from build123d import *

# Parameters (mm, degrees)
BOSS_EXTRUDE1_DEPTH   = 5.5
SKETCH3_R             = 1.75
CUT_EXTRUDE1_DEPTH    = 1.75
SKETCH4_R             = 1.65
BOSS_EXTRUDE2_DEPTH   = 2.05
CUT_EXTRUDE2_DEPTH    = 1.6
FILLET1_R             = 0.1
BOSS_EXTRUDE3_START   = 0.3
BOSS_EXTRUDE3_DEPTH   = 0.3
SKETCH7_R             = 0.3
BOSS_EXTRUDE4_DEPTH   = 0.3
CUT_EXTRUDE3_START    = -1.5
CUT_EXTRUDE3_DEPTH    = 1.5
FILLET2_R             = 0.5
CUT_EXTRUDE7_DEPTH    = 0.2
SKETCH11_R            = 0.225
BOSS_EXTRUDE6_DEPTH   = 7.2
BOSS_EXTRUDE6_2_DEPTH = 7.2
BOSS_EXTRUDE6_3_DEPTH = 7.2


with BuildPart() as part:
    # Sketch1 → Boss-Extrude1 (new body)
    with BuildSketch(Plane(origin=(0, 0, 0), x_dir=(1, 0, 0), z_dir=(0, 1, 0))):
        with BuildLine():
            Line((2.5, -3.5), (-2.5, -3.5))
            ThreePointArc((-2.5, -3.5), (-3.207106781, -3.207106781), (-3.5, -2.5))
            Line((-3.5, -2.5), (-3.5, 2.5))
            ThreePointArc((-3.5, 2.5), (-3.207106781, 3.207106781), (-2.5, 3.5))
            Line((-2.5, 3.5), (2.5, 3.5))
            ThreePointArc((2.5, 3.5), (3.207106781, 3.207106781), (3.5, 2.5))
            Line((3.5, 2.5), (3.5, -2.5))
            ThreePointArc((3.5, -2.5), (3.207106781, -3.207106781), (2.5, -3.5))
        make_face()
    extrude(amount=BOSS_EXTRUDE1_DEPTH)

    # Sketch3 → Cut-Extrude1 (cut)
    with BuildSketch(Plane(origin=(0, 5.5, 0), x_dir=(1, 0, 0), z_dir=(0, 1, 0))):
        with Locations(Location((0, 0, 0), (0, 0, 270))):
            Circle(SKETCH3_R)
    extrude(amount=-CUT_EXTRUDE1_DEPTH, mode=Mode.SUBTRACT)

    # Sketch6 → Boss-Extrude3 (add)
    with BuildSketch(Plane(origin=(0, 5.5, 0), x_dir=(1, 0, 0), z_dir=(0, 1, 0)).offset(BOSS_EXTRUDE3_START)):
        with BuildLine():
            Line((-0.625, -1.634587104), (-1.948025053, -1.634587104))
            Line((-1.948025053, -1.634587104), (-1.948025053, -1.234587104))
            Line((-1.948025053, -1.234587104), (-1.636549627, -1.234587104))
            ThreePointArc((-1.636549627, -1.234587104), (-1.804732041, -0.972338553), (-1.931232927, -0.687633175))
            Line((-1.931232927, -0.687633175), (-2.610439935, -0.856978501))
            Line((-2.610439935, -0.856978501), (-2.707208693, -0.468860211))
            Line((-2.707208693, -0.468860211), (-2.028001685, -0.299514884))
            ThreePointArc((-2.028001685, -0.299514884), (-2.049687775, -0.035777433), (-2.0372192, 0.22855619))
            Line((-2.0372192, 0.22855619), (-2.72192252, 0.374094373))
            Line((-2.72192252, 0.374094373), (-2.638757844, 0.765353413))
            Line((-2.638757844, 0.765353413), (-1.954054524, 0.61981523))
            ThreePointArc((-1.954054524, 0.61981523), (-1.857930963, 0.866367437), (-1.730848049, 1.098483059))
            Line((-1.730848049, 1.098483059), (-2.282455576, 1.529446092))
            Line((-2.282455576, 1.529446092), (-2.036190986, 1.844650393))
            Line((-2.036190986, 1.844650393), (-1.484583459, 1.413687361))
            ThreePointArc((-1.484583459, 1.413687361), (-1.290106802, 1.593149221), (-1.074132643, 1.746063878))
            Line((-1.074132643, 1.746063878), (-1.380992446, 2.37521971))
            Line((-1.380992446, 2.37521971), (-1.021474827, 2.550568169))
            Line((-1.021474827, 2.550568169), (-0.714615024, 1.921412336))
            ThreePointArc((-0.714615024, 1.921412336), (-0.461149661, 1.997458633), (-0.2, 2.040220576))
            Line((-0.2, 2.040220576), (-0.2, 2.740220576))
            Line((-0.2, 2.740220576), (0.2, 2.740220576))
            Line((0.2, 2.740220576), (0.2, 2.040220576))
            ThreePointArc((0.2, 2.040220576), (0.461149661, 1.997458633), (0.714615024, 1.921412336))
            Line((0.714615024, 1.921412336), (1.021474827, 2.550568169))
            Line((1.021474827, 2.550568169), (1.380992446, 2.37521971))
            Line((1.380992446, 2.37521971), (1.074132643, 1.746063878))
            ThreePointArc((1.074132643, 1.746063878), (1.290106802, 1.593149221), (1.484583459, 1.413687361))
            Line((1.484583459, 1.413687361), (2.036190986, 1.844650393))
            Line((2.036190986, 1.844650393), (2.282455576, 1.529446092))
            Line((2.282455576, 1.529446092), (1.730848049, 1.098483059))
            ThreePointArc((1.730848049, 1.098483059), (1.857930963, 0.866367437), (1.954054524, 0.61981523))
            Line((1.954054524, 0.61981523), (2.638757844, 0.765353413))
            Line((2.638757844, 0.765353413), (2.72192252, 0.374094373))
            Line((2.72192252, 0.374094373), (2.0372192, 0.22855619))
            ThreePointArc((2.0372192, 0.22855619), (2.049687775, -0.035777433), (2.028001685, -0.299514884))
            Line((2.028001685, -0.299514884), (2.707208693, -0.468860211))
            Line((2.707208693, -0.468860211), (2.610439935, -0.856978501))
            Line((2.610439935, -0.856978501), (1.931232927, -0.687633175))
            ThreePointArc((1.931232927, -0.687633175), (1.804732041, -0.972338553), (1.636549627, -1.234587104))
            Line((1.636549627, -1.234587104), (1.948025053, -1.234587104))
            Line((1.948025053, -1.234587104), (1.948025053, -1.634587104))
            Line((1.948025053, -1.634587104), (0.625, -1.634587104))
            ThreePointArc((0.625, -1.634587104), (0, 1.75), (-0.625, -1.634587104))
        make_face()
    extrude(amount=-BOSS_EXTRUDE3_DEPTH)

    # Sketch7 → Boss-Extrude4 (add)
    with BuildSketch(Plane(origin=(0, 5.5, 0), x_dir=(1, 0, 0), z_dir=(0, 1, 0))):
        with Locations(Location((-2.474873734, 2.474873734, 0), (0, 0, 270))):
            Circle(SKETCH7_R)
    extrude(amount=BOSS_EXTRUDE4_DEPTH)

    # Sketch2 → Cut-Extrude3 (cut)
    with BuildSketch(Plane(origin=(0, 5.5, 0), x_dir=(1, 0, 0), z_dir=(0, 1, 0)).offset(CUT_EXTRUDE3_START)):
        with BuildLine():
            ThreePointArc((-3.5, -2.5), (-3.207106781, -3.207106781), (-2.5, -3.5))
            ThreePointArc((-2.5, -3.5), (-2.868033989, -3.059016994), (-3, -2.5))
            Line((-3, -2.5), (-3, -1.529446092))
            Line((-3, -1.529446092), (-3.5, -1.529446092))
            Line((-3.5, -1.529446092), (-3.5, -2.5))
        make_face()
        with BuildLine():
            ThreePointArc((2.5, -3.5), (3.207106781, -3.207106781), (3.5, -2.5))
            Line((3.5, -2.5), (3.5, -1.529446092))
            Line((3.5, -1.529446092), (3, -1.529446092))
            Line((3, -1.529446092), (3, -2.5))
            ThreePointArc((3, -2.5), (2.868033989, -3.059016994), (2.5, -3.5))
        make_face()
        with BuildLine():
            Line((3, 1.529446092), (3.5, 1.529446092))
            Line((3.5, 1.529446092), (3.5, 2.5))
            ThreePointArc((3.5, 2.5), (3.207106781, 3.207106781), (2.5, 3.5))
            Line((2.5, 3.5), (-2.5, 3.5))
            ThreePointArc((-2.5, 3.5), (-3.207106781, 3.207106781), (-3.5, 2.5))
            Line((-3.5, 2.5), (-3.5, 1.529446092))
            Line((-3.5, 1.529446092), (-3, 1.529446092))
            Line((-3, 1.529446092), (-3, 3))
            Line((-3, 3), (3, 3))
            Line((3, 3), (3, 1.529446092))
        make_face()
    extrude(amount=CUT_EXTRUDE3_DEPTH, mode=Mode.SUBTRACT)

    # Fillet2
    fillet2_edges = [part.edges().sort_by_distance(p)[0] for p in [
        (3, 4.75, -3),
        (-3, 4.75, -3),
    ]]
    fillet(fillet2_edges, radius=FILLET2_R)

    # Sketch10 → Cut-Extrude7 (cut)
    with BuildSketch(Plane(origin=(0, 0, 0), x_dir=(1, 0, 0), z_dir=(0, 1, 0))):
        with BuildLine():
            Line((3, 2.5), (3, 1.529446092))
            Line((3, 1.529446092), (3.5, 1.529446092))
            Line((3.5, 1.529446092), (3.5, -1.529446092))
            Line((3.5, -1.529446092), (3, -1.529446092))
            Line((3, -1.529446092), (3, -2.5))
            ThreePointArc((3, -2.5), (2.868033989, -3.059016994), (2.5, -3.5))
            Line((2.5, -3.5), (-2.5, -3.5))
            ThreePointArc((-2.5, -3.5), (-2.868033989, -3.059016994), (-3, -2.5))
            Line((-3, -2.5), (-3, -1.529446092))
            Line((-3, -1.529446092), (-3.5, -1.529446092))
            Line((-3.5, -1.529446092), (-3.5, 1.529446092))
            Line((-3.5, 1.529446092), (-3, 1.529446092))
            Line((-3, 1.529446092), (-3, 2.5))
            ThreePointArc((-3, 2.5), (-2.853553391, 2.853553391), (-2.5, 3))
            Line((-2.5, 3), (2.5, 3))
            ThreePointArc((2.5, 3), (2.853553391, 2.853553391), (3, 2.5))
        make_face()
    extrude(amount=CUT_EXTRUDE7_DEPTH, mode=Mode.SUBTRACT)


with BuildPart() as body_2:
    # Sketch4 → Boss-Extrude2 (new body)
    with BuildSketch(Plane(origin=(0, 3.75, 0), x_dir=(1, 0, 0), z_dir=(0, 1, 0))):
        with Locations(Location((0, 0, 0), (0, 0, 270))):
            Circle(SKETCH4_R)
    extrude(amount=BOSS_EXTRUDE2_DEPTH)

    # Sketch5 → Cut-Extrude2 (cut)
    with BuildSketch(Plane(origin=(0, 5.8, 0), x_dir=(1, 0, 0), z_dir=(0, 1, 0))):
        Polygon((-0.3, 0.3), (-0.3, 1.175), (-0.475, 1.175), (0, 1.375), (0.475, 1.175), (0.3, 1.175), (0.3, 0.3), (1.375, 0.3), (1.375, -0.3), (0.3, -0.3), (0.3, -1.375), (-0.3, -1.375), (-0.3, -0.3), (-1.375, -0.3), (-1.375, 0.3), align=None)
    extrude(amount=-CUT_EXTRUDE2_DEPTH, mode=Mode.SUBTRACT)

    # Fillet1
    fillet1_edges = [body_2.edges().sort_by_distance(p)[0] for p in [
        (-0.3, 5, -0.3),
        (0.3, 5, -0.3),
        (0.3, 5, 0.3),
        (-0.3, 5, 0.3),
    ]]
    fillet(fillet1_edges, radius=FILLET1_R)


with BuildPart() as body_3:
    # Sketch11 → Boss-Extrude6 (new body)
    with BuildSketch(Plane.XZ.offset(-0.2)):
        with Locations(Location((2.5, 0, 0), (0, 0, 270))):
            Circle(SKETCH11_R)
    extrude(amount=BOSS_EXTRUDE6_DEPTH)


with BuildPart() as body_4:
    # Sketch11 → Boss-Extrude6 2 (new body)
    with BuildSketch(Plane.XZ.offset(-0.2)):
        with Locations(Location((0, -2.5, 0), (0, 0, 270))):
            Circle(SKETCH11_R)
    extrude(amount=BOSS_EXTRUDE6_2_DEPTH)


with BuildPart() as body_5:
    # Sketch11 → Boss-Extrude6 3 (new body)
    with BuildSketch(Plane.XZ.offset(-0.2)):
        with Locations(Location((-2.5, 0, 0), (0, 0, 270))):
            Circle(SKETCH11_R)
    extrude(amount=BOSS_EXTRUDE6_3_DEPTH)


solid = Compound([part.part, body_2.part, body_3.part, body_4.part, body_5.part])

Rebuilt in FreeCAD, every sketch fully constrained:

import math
import FreeCAD as App
import Part
import Sketcher
from FreeCAD import Vector
Q = App.Units.Quantity


def edges_at(feature, points):
    """Names of the edges that pass closest to the given points."""
    edges = feature.Shape.Edges
    near = lambda p: min(range(len(edges)), key=lambda i: edges[i].distToShape(Part.Vertex(*p))[0])
    return sorted({f"Edge{near(p) + 1}" for p in points})

doc = App.newDocument("Part")
params = doc.addObject("Spreadsheet::Sheet", "Params")
for row, (alias, value) in enumerate([
    ("sketch1_radius", "1 mm"),
    ("sketch1_width", "5 mm"),
    ("pad1_length", "5.5 mm"),
    ("sketch2_diameter", "3.5 mm"),
    ("pocket1_length", "1.75 mm"),
    ("sketch3_radius", "1.75 mm"),
    ("sketch3_radius2", "2.05 mm"),
    ("sketch3_width", "0.4 mm"),
    ("sketch3_height", "0.7 mm"),
    ("sketch3_length", "0.7 mm"),
    ("pad2_length", "0.3 mm"),
    ("sketch4_diameter", "0.6 mm"),
    ("pad3_length", "0.3 mm"),
    ("sketch5_radius", "1 mm"),
    ("sketch5_width", "5 mm"),
    ("sketch5_width2", "6 mm"),
    ("pocket2_length", "1.5 mm"),
    ("fillet_radius", "0.5 mm"),
    ("sketch6_radius", "0.5 mm"),
    ("sketch6_width", "5 mm"),
    ("sketch6_radius2", "1.25 mm"),
    ("sketch6_width2", "0.5 mm"),
    ("pocket3_length", "0.2 mm"),
    ("sketch7_diameter", "3.3 mm"),
    ("pad4_length", "2.05 mm"),
    ("sketch8_width", "0.6 mm"),
    ("pocket4_length", "1.6 mm"),
    ("fillet2_radius", "0.1 mm"),
    ("sketch9_diameter", "0.45 mm"),
    ("pad5_length", "7.2 mm"),
    ("sketch10_diameter", "0.45 mm"),
    ("pad6_length", "7.2 mm"),
    ("sketch11_diameter", "0.45 mm"),
    ("pad7_length", "7.2 mm"),
], start=1):
    params.set(f"A{row}", alias)
    params.set(f"B{row}", "=" + value)
    params.setAlias(f"B{row}", alias)

body = doc.addObject("PartDesign::Body", "Body")

sketch1 = body.newObject("Sketcher::SketchObject", "Sketch")
sketch1.AttachmentSupport = (doc.getObject("XZ_Plane"), [""])
sketch1.MapMode = "FlatFace"
sketch1.addGeometry([
    Part.LineSegment(Vector(-2.5, 3.5, 0), Vector(2.5, 3.5, 0)),
    Part.ArcOfCircle(Part.Circle(Vector(2.5, 2.5, 0), Vector(0, 0, 1), 1), math.radians(0), math.radians(90)),
    Part.LineSegment(Vector(3.5, 2.5, 0), Vector(3.5, -2.5, 0)),
    Part.ArcOfCircle(Part.Circle(Vector(2.5, -2.5, 0), Vector(0, 0, 1), 1), math.radians(-90), math.radians(0)),
    Part.LineSegment(Vector(2.5, -3.5, 0), Vector(-2.5, -3.5, 0)),
    Part.ArcOfCircle(Part.Circle(Vector(-2.5, -2.5, 0), Vector(0, 0, 1), 1), math.radians(-180), math.radians(-90)),
    Part.LineSegment(Vector(-3.5, -2.5, 0), Vector(-3.5, 2.5, 0)),
    Part.ArcOfCircle(Part.Circle(Vector(-2.5, 2.5, 0), Vector(0, 0, 1), 1), math.radians(90), math.radians(180)),
], False)
sketch1.addConstraint([
    Sketcher.Constraint("Tangent", 0, 2, 1, 2),
    Sketcher.Constraint("Tangent", 1, 1, 2, 1),
    Sketcher.Constraint("Tangent", 2, 2, 3, 2),
    Sketcher.Constraint("Tangent", 3, 1, 4, 1),
    Sketcher.Constraint("Tangent", 4, 2, 5, 2),
    Sketcher.Constraint("Tangent", 5, 1, 6, 1),
    Sketcher.Constraint("Tangent", 6, 2, 7, 2),
    Sketcher.Constraint("Tangent", 7, 1, 0, 1),
    Sketcher.Constraint("Horizontal", 0),
    Sketcher.Constraint("Vertical", 2),
    Sketcher.Constraint("Horizontal", 4),
    Sketcher.Constraint("Vertical", 6),
    Sketcher.Constraint("Equal", 1, 3),
    Sketcher.Constraint("Equal", 3, 5),
    Sketcher.Constraint("Equal", 5, 7),
    Sketcher.Constraint("Symmetric", 1, 3, 5, 3, -1, 1),
    Sketcher.Constraint("Equal", 4, 2),
    Sketcher.Constraint("Radius", 1, 1.0),
    Sketcher.Constraint("DistanceX", 0, 1, 0, 2, 5.0),
])
sketch1.setExpression("Constraints[17]", "Params.sketch1_radius")
sketch1.setExpression("Constraints[18]", "Params.sketch1_width")
pad1 = body.newObject("PartDesign::Pad", "Pad")
pad1.Profile = sketch1
pad1.setExpression("Length", "Params.pad1_length")
pad1.Reversed = True

sketch2 = body.newObject("Sketcher::SketchObject", "Sketch001")
sketch2.AttachmentSupport = (doc.getObject("XZ_Plane"), [""])
sketch2.MapMode = "FlatFace"
sketch2.AttachmentOffset = App.Placement(Vector(0, 0, -5.5), App.Rotation())
sketch2.addGeometry(Part.Circle(Vector(0, 0, 0), Vector(0, 0, 1), 1.8), False)
sketch2.addConstraint([
    Sketcher.Constraint("Coincident", 0, 3, -1, 1),
    Sketcher.Constraint("Diameter", 0, 3.5),
])
sketch2.setExpression("Constraints[1]", "Params.sketch2_diameter")
pocket1 = body.newObject("PartDesign::Pocket", "Pocket")
pocket1.Profile = sketch2
pocket1.setExpression("Length", "Params.pocket1_length")
pocket1.Reversed = True

sketch3 = body.newObject("Sketcher::SketchObject", "Sketch002")
sketch3.AttachmentSupport = (doc.getObject("XZ_Plane"), [""])
sketch3.MapMode = "FlatFace"
sketch3.AttachmentOffset = App.Placement(Vector(0, 0, -5.8), App.Rotation())
sketch3.addGeometry([
    Part.LineSegment(Vector(-1.95, 1.63, 0), Vector(-0.62, 1.63, 0)),
    Part.ArcOfCircle(Part.Circle(Vector(0, 0, 0), Vector(0, 0, 1), 1.75), math.radians(111), math.radians(429)),
    Part.LineSegment(Vector(0.62, 1.63, 0), Vector(1.95, 1.63, 0)),
    Part.LineSegment(Vector(1.95, 1.63, 0), Vector(1.95, 1.23, 0)),
    Part.LineSegment(Vector(1.95, 1.23, 0), Vector(1.64, 1.23, 0)),
    Part.ArcOfCircle(Part.Circle(Vector(0, 0, 0), Vector(0, 0, 1), 2.05), math.radians(19.6), math.radians(37.03)),
    Part.LineSegment(Vector(1.93, 0.69, 0), Vector(2.61, 0.86, 0)),
    Part.LineSegment(Vector(2.61, 0.86, 0), Vector(2.71, 0.47, 0)),
    Part.LineSegment(Vector(2.71, 0.47, 0), Vector(2.03, 0.3, 0)),
    Part.ArcOfCircle(Part.Circle(Vector(0, 0, 0), Vector(0, 0, 1), 2.05), math.radians(-6.4), math.radians(8.4)),
    Part.LineSegment(Vector(2.04, -0.23, 0), Vector(2.72, -0.37, 0)),
    Part.LineSegment(Vector(2.72, -0.37, 0), Vector(2.64, -0.77, 0)),
    Part.LineSegment(Vector(2.64, -0.77, 0), Vector(1.95, -0.62, 0)),
    Part.ArcOfCircle(Part.Circle(Vector(0, 0, 0), Vector(0, 0, 1), 2.05), math.radians(-32.4), math.radians(-17.6)),
    Part.LineSegment(Vector(1.73, -1.1, 0), Vector(2.28, -1.53, 0)),
    Part.LineSegment(Vector(2.28, -1.53, 0), Vector(2.04, -1.84, 0)),
    Part.LineSegment(Vector(2.04, -1.84, 0), Vector(1.48, -1.41, 0)),
    Part.ArcOfCircle(Part.Circle(Vector(0, 0, 0), Vector(0, 0, 1), 2.05), math.radians(-58.4), math.radians(-43.6)),
    Part.LineSegment(Vector(1.07, -1.75, 0), Vector(1.38, -2.38, 0)),
    Part.LineSegment(Vector(1.38, -2.38, 0), Vector(1.02, -2.55, 0)),
    Part.LineSegment(Vector(1.02, -2.55, 0), Vector(0.71, -1.92, 0)),
    Part.ArcOfCircle(Part.Circle(Vector(0, 0, 0), Vector(0, 0, 1), 2.05), math.radians(-84.4), math.radians(-69.6)),
    Part.LineSegment(Vector(0.2, -2.04, 0), Vector(0.2, -2.74, 0)),
    Part.LineSegment(Vector(0.2, -2.74, 0), Vector(-0.2, -2.74, 0)),
    Part.LineSegment(Vector(-0.2, -2.74, 0), Vector(-0.2, -2.04, 0)),
    Part.ArcOfCircle(Part.Circle(Vector(0, 0, 0), Vector(0, 0, 1), 2.05), math.radians(-110.4), math.radians(-95.6)),
    Part.LineSegment(Vector(-0.71, -1.92, 0), Vector(-1.02, -2.55, 0)),
    Part.LineSegment(Vector(-1.02, -2.55, 0), Vector(-1.38, -2.38, 0)),
    Part.LineSegment(Vector(-1.38, -2.38, 0), Vector(-1.07, -1.75, 0)),
    Part.ArcOfCircle(Part.Circle(Vector(0, 0, 0), Vector(0, 0, 1), 2.05), math.radians(-136.4), math.radians(-121.6)),
    Part.LineSegment(Vector(-1.48, -1.41, 0), Vector(-2.04, -1.84, 0)),
    Part.LineSegment(Vector(-2.04, -1.84, 0), Vector(-2.28, -1.53, 0)),
    Part.LineSegment(Vector(-2.28, -1.53, 0), Vector(-1.73, -1.1, 0)),
    Part.ArcOfCircle(Part.Circle(Vector(0, 0, 0), Vector(0, 0, 1), 2.05), math.radians(-162.4), math.radians(-147.6)),
    Part.LineSegment(Vector(-1.95, -0.62, 0), Vector(-2.64, -0.77, 0)),
    Part.LineSegment(Vector(-2.64, -0.77, 0), Vector(-2.72, -0.37, 0)),
    Part.LineSegment(Vector(-2.72, -0.37, 0), Vector(-2.04, -0.23, 0)),
    Part.ArcOfCircle(Part.Circle(Vector(0, 0, 0), Vector(0, 0, 1), 2.05), math.radians(171.6), math.radians(186.4)),
    Part.LineSegment(Vector(-2.03, 0.3, 0), Vector(-2.71, 0.47, 0)),
    Part.LineSegment(Vector(-2.71, 0.47, 0), Vector(-2.61, 0.86, 0)),
    Part.LineSegment(Vector(-2.61, 0.86, 0), Vector(-1.93, 0.69, 0)),
    Part.ArcOfCircle(Part.Circle(Vector(0, 0, 0), Vector(0, 0, 1), 2.05), math.radians(142.97), math.radians(160.4)),
    Part.LineSegment(Vector(-1.64, 1.23, 0), Vector(-1.95, 1.23, 0)),
    Part.LineSegment(Vector(-1.95, 1.23, 0), Vector(-1.95, 1.63, 0)),
], False)
sketch3.addConstraint([
    Sketcher.Constraint("Coincident", 0, 2, 1, 1),
    Sketcher.Constraint("Coincident", 1, 2, 2, 1),
    Sketcher.Constraint("Coincident", 2, 2, 3, 1),
    Sketcher.Constraint("Coincident", 3, 2, 4, 1),
    Sketcher.Constraint("Coincident", 4, 2, 5, 2),
    Sketcher.Constraint("Coincident", 5, 1, 6, 1),
    Sketcher.Constraint("Coincident", 6, 2, 7, 1),
    Sketcher.Constraint("Coincident", 7, 2, 8, 1),
    Sketcher.Constraint("Coincident", 8, 2, 9, 2),
    Sketcher.Constraint("Coincident", 9, 1, 10, 1),
    Sketcher.Constraint("Coincident", 10, 2, 11, 1),
    Sketcher.Constraint("Coincident", 11, 2, 12, 1),
    Sketcher.Constraint("Coincident", 12, 2, 13, 2),
    Sketcher.Constraint("Coincident", 13, 1, 14, 1),
    Sketcher.Constraint("Coincident", 14, 2, 15, 1),
    Sketcher.Constraint("Coincident", 15, 2, 16, 1),
    Sketcher.Constraint("Coincident", 16, 2, 17, 2),
    Sketcher.Constraint("Coincident", 17, 1, 18, 1),
    Sketcher.Constraint("Coincident", 18, 2, 19, 1),
    Sketcher.Constraint("Coincident", 19, 2, 20, 1),
    Sketcher.Constraint("Coincident", 20, 2, 21, 2),
    Sketcher.Constraint("Coincident", 21, 1, 22, 1),
    Sketcher.Constraint("Coincident", 22, 2, 23, 1),
    Sketcher.Constraint("Coincident", 23, 2, 24, 1),
    Sketcher.Constraint("Coincident", 24, 2, 25, 2),
    Sketcher.Constraint("Coincident", 25, 1, 26, 1),
    Sketcher.Constraint("Coincident", 26, 2, 27, 1),
    Sketcher.Constraint("Coincident", 27, 2, 28, 1),
    Sketcher.Constraint("Coincident", 28, 2, 29, 2),
    Sketcher.Constraint("Coincident", 29, 1, 30, 1),
    Sketcher.Constraint("Coincident", 30, 2, 31, 1),
    Sketcher.Constraint("Coincident", 31, 2, 32, 1),
    Sketcher.Constraint("Coincident", 32, 2, 33, 2),
    Sketcher.Constraint("Coincident", 33, 1, 34, 1),
    Sketcher.Constraint("Coincident", 34, 2, 35, 1),
    Sketcher.Constraint("Coincident", 35, 2, 36, 1),
    Sketcher.Constraint("Coincident", 36, 2, 37, 2),
    Sketcher.Constraint("Coincident", 37, 1, 38, 1),
    Sketcher.Constraint("Coincident", 38, 2, 39, 1),
    Sketcher.Constraint("Coincident", 39, 2, 40, 1),
    Sketcher.Constraint("Coincident", 40, 2, 41, 2),
    Sketcher.Constraint("Coincident", 41, 1, 42, 1),
    Sketcher.Constraint("Coincident", 42, 2, 43, 1),
    Sketcher.Constraint("Coincident", 43, 2, 0, 1),
    Sketcher.Constraint("Horizontal", 0),
    Sketcher.Constraint("Horizontal", 2),
    Sketcher.Constraint("Vertical", 3),
    Sketcher.Constraint("Horizontal", 4),
    Sketcher.Constraint("Vertical", 22),
    Sketcher.Constraint("Horizontal", 23),
    Sketcher.Constraint("Vertical", 24),
    Sketcher.Constraint("Horizontal", 42),
    Sketcher.Constraint("Vertical", 43),
    Sketcher.Constraint("Coincident", 1, 3, -1, 1),
    Sketcher.Constraint("Coincident", 5, 3, -1, 1),
    Sketcher.Constraint("Coincident", 9, 3, -1, 1),
    Sketcher.Constraint("Coincident", 13, 3, -1, 1),
    Sketcher.Constraint("Coincident", 17, 3, -1, 1),
    Sketcher.Constraint("Coincident", 21, 3, -1, 1),
    Sketcher.Constraint("Coincident", 25, 3, -1, 1),
    Sketcher.Constraint("Coincident", 29, 3, -1, 1),
    Sketcher.Constraint("Coincident", 33, 3, -1, 1),
    Sketcher.Constraint("Coincident", 37, 3, -1, 1),
    Sketcher.Constraint("Coincident", 41, 3, -1, 1),
    Sketcher.Constraint("Equal", 5, 9),
    Sketcher.Constraint("Equal", 9, 13),
    Sketcher.Constraint("Equal", 13, 17),
    Sketcher.Constraint("Equal", 17, 21),
    Sketcher.Constraint("Equal", 21, 25),
    Sketcher.Constraint("Equal", 25, 29),
    Sketcher.Constraint("Equal", 29, 33),
    Sketcher.Constraint("Equal", 33, 37),
    Sketcher.Constraint("Equal", 37, 41),
    Sketcher.Constraint("Symmetric", 19, 2, 26, 2, -2),
    Sketcher.Constraint("Symmetric", 18, 2, 27, 2, -2),
    Sketcher.Constraint("Symmetric", 15, 2, 30, 2, -2),
    Sketcher.Constraint("Symmetric", 14, 2, 31, 2, -2),
    Sketcher.Constraint("Symmetric", 11, 2, 34, 2, -2),
    Sketcher.Constraint("Symmetric", 10, 2, 35, 2, -2),
    Sketcher.Constraint("Symmetric", 7, 2, 38, 2, -2),
    Sketcher.Constraint("Symmetric", 6, 2, 39, 2, -2),
    Sketcher.Constraint("Symmetric", 3, 2, 42, 2, -2),
    Sketcher.Constraint("Perpendicular", 6, 7),
    Sketcher.Constraint("Perpendicular", 7, 8),
    Sketcher.Constraint("Perpendicular", 10, 11),
    Sketcher.Constraint("Perpendicular", 11, 12),
    Sketcher.Constraint("Perpendicular", 14, 15),
    Sketcher.Constraint("Perpendicular", 15, 16),
    Sketcher.Constraint("Perpendicular", 18, 19),
    Sketcher.Constraint("Perpendicular", 19, 20),
    Sketcher.Constraint("Perpendicular", 26, 27),
    Sketcher.Constraint("Perpendicular", 27, 28),
    Sketcher.Constraint("Perpendicular", 30, 31),
    Sketcher.Constraint("Perpendicular", 31, 32),
    Sketcher.Constraint("Perpendicular", 34, 35),
    Sketcher.Constraint("Perpendicular", 35, 36),
    Sketcher.Constraint("Perpendicular", 38, 39),
    Sketcher.Constraint("Perpendicular", 39, 40),
    Sketcher.Constraint("Horizontal", 0, 2, 1, 2),
    Sketcher.Constraint("Horizontal", 21, 1, 24, 2),
    Sketcher.Constraint("Equal", 23, 3),
    Sketcher.Constraint("Equal", 6, 8),
    Sketcher.Constraint("Equal", 8, 10),
    Sketcher.Constraint("Equal", 7, 11),
    Sketcher.Constraint("Equal", 10, 12),
    Sketcher.Constraint("Equal", 12, 14),
    Sketcher.Constraint("Equal", 11, 15),
    Sketcher.Constraint("Equal", 14, 16),
    Sketcher.Constraint("Equal", 16, 18),
    Sketcher.Constraint("Equal", 15, 19),
    Sketcher.Constraint("Equal", 18, 20),
    Sketcher.Constraint("Angle", 6, Q("14 deg")),
    Sketcher.Constraint("Angle", 10, Q("-12 deg")),
    Sketcher.Constraint("Angle", 14, Q("-38 deg")),
    Sketcher.Constraint("Angle", 18, Q("-64 deg")),
    Sketcher.Constraint("Radius", 1, 1.75),
    Sketcher.Constraint("Radius", 5, 2.05),
    Sketcher.Constraint("DistanceX", 23, 2, 23, 1, 0.4),
    Sketcher.Constraint("DistanceY", 22, 2, 22, 1, 0.7),
    Sketcher.Constraint("Distance", 6, 0.7),
    Sketcher.Constraint("Distance", 7, 0.4),
    Sketcher.Constraint("DistanceX", 0, 2, 1, 2, 1.25),
    Sketcher.Constraint("DistanceX", 0, 1, 0, 2, 1.323025),
])
sketch3.setExpression("Constraints[115]", "Params.sketch3_radius")
sketch3.setExpression("Constraints[116]", "Params.sketch3_radius2")
sketch3.setExpression("Constraints[117]", "Params.sketch3_width")
sketch3.setExpression("Constraints[118]", "Params.sketch3_height")
sketch3.setExpression("Constraints[119]", "Params.sketch3_length")
pad2 = body.newObject("PartDesign::Pad", "Pad001")
pad2.Profile = sketch3
pad2.setExpression("Length", "Params.pad2_length")

sketch4 = body.newObject("Sketcher::SketchObject", "Sketch003")
sketch4.AttachmentSupport = (doc.getObject("XZ_Plane"), [""])
sketch4.MapMode = "FlatFace"
sketch4.AttachmentOffset = App.Placement(Vector(0, 0, -5.5), App.Rotation())
sketch4.addGeometry(Part.Circle(Vector(-2.47, -2.47, 0), Vector(0, 0, 1), 0.3), False)
sketch4.addConstraint([
    Sketcher.Constraint("Diameter", 0, 0.6),
    Sketcher.Constraint("DistanceX", 0, 3, -1, 1, 2.474874),
    Sketcher.Constraint("DistanceY", 0, 3, -1, 1, 2.474874),
])
sketch4.setExpression("Constraints[0]", "Params.sketch4_diameter")
pad3 = body.newObject("PartDesign::Pad", "Pad002")
pad3.Profile = sketch4
pad3.setExpression("Length", "Params.pad3_length")
pad3.Reversed = True

sketch5 = body.newObject("Sketcher::SketchObject", "Sketch004")
sketch5.AttachmentSupport = (doc.getObject("XZ_Plane"), [""])
sketch5.MapMode = "FlatFace"
sketch5.AttachmentOffset = App.Placement(Vector(0, 0, -4), App.Rotation())
sketch5.addGeometry([
    Part.ArcOfCircle(Part.Circle(Vector(-2.5, 2.5, 0), Vector(0, 0, 1), 1), math.radians(90), math.radians(180)),
    Part.ArcOfCircle(Part.Circle(Vector(-1.8, 2.5, 0), Vector(0, 0, 1), 1.2), math.radians(127), math.radians(180)),
    Part.LineSegment(Vector(-3, 2.5, 0), Vector(-3, 1.5, 0)),
    Part.LineSegment(Vector(-3, 1.5, 0), Vector(-3.5, 1.5, 0)),
    Part.LineSegment(Vector(-3.5, 1.5, 0), Vector(-3.5, 2.5, 0)),
    Part.ArcOfCircle(Part.Circle(Vector(2.5, 2.5, 0), Vector(0, 0, 1), 1), math.radians(0), math.radians(90)),
    Part.LineSegment(Vector(3.5, 2.5, 0), Vector(3.5, 1.5, 0)),
    Part.LineSegment(Vector(3.5, 1.5, 0), Vector(3, 1.5, 0)),
    Part.LineSegment(Vector(3, 1.5, 0), Vector(3, 2.5, 0)),
    Part.ArcOfCircle(Part.Circle(Vector(1.8, 2.5, 0), Vector(0, 0, 1), 1.2), math.radians(0), math.radians(53)),
    Part.LineSegment(Vector(3, -1.5, 0), Vector(3.5, -1.5, 0)),
    Part.LineSegment(Vector(3.5, -1.5, 0), Vector(3.5, -2.5, 0)),
    Part.ArcOfCircle(Part.Circle(Vector(2.5, -2.5, 0), Vector(0, 0, 1), 1), math.radians(-90), math.radians(0)),
    Part.LineSegment(Vector(2.5, -3.5, 0), Vector(-2.5, -3.5, 0)),
    Part.ArcOfCircle(Part.Circle(Vector(-2.5, -2.5, 0), Vector(0, 0, 1), 1), math.radians(-180), math.radians(-90)),
    Part.LineSegment(Vector(-3.5, -2.5, 0), Vector(-3.5, -1.5, 0)),
    Part.LineSegment(Vector(-3.5, -1.5, 0), Vector(-3, -1.5, 0)),
    Part.LineSegment(Vector(-3, -1.5, 0), Vector(-3, -3, 0)),
    Part.LineSegment(Vector(-3, -3, 0), Vector(3, -3, 0)),
    Part.LineSegment(Vector(3, -3, 0), Vector(3, -1.5, 0)),
], False)
sketch5.addConstraint([
    Sketcher.Constraint("Coincident", 0, 1, 1, 1),
    Sketcher.Constraint("Tangent", 1, 2, 2, 1),
    Sketcher.Constraint("Coincident", 2, 2, 3, 1),
    Sketcher.Constraint("Coincident", 3, 2, 4, 1),
    Sketcher.Constraint("Tangent", 4, 2, 0, 2),
    Sketcher.Constraint("Tangent", 5, 1, 6, 1),
    Sketcher.Constraint("Coincident", 6, 2, 7, 1),
    Sketcher.Constraint("Coincident", 7, 2, 8, 1),
    Sketcher.Constraint("Tangent", 8, 2, 9, 1),
    Sketcher.Constraint("Coincident", 9, 2, 5, 2),
    Sketcher.Constraint("Coincident", 10, 2, 11, 1),
    Sketcher.Constraint("Tangent", 11, 2, 12, 2),
    Sketcher.Constraint("Tangent", 12, 1, 13, 1),
    Sketcher.Constraint("Tangent", 13, 2, 14, 2),
    Sketcher.Constraint("Tangent", 14, 1, 15, 1),
    Sketcher.Constraint("Coincident", 15, 2, 16, 1),
    Sketcher.Constraint("Coincident", 16, 2, 17, 1),
    Sketcher.Constraint("Coincident", 17, 2, 18, 1),
    Sketcher.Constraint("Coincident", 18, 2, 19, 1),
    Sketcher.Constraint("Coincident", 19, 2, 10, 1),
    Sketcher.Constraint("Vertical", 2),
    Sketcher.Constraint("Horizontal", 3),
    Sketcher.Constraint("Vertical", 4),
    Sketcher.Constraint("Vertical", 6),
    Sketcher.Constraint("Horizontal", 7),
    Sketcher.Constraint("Vertical", 8),
    Sketcher.Constraint("Horizontal", 10),
    Sketcher.Constraint("Vertical", 11),
    Sketcher.Constraint("Horizontal", 13),
    Sketcher.Constraint("Vertical", 15),
    Sketcher.Constraint("Horizontal", 16),
    Sketcher.Constraint("Vertical", 17),
    Sketcher.Constraint("Horizontal", 18),
    Sketcher.Constraint("Vertical", 19),
    Sketcher.Constraint("Equal", 0, 5),
    Sketcher.Constraint("Equal", 1, 9),
    Sketcher.Constraint("Equal", 5, 12),
    Sketcher.Constraint("Equal", 12, 14),
    Sketcher.Constraint("Symmetric", 0, 3, 12, 3, -1, 1),
    Sketcher.Constraint("Symmetric", 5, 3, 14, 3, -1, 1),
    Sketcher.Constraint("Symmetric", 7, 2, 16, 2, -1, 1),
    Sketcher.Constraint("Symmetric", 2, 2, 19, 2, -1, 1),
    Sketcher.Constraint("Symmetric", 1, 3, 9, 3, -2),
    Sketcher.Constraint("Symmetric", 3, 2, 6, 2, -2),
    Sketcher.Constraint("Horizontal", 0, 3, 1, 3),
    Sketcher.Constraint("Vertical", 14, 3, 0, 1),
    Sketcher.Constraint("Radius", 0, 1.0),
    Sketcher.Constraint("DistanceX", 13, 2, 13, 1, 5.0),
    Sketcher.Constraint("DistanceX", 18, 1, 18, 2, 6.0),
    Sketcher.Constraint("DistanceY", 17, 2, -1, 1, 3.0),
    Sketcher.Constraint("DistanceY", 12, 3, 5, 3, 5.0),
    Sketcher.Constraint("DistanceY", 2, 2, 2, 1, 0.970554),
])
sketch5.setExpression("Constraints[46]", "Params.sketch5_radius")
sketch5.setExpression("Constraints[47]", "Params.sketch5_width")
sketch5.setExpression("Constraints[48]", "Params.sketch5_width2")
pocket2 = body.newObject("PartDesign::Pocket", "Pocket001")
pocket2.Profile = sketch5
pocket2.setExpression("Length", "Params.pocket2_length")
doc.recompute()

fillet = body.newObject("PartDesign::Fillet", "Fillet")
fillet.Base = (pocket2, edges_at(pocket2, [(3, 4.75, -3), (-3, 4.75, -3)]))
fillet.setExpression("Radius", "Params.fillet_radius")

sketch6 = body.newObject("Sketcher::SketchObject", "Sketch005")
sketch6.AttachmentSupport = (doc.getObject("XZ_Plane"), [""])
sketch6.MapMode = "FlatFace"
sketch6.addGeometry([
    Part.LineSegment(Vector(3, -1.53, 0), Vector(3, -2.5, 0)),
    Part.ArcOfCircle(Part.Circle(Vector(2.5, -2.5, 0), Vector(0, 0, 1), 0.5), math.radians(-90), math.radians(0)),
    Part.LineSegment(Vector(2.5, -3, 0), Vector(-2.5, -3, 0)),
    Part.ArcOfCircle(Part.Circle(Vector(-2.5, -2.5, 0), Vector(0, 0, 1), 0.5), math.radians(180), math.radians(270)),
    Part.LineSegment(Vector(-3, -2.5, 0), Vector(-3, -1.53, 0)),
    Part.LineSegment(Vector(-3, -1.53, 0), Vector(-3.5, -1.53, 0)),
    Part.LineSegment(Vector(-3.5, -1.53, 0), Vector(-3.5, 1.53, 0)),
    Part.LineSegment(Vector(-3.5, 1.53, 0), Vector(-3, 1.53, 0)),
    Part.LineSegment(Vector(-3, 1.53, 0), Vector(-3, 2.5, 0)),
    Part.ArcOfCircle(Part.Circle(Vector(-1.75, 2.5, 0), Vector(0, 0, 1), 1.25), math.radians(127), math.radians(180)),
    Part.LineSegment(Vector(-2.5, 3.5, 0), Vector(2.5, 3.5, 0)),
    Part.ArcOfCircle(Part.Circle(Vector(1.75, 2.5, 0), Vector(0, 0, 1), 1.25), math.radians(0), math.radians(53)),
    Part.LineSegment(Vector(3, 2.5, 0), Vector(3, 1.53, 0)),
    Part.LineSegment(Vector(3, 1.53, 0), Vector(3.5, 1.53, 0)),
    Part.LineSegment(Vector(3.5, 1.53, 0), Vector(3.5, -1.53, 0)),
    Part.LineSegment(Vector(3.5, -1.53, 0), Vector(3, -1.53, 0)),
], False)
sketch6.addConstraint([
    Sketcher.Constraint("Tangent", 0, 2, 1, 2),
    Sketcher.Constraint("Tangent", 1, 1, 2, 1),
    Sketcher.Constraint("Tangent", 2, 2, 3, 2),
    Sketcher.Constraint("Tangent", 3, 1, 4, 1),
    Sketcher.Constraint("Coincident", 4, 2, 5, 1),
    Sketcher.Constraint("Coincident", 5, 2, 6, 1),
    Sketcher.Constraint("Coincident", 6, 2, 7, 1),
    Sketcher.Constraint("Coincident", 7, 2, 8, 1),
    Sketcher.Constraint("Tangent", 8, 2, 9, 2),
    Sketcher.Constraint("Coincident", 9, 1, 10, 1),
    Sketcher.Constraint("Coincident", 10, 2, 11, 2),
    Sketcher.Constraint("Tangent", 11, 1, 12, 1),
    Sketcher.Constraint("Coincident", 12, 2, 13, 1),
    Sketcher.Constraint("Coincident", 13, 2, 14, 1),
    Sketcher.Constraint("Coincident", 14, 2, 15, 1),
    Sketcher.Constraint("Coincident", 15, 2, 0, 1),
    Sketcher.Constraint("Vertical", 0),
    Sketcher.Constraint("Horizontal", 2),
    Sketcher.Constraint("Vertical", 4),
    Sketcher.Constraint("Horizontal", 5),
    Sketcher.Constraint("Vertical", 6),
    Sketcher.Constraint("Horizontal", 7),
    Sketcher.Constraint("Vertical", 8),
    Sketcher.Constraint("Horizontal", 10),
    Sketcher.Constraint("Vertical", 12),
    Sketcher.Constraint("Horizontal", 13),
    Sketcher.Constraint("Vertical", 14),
    Sketcher.Constraint("Horizontal", 15),
    Sketcher.Constraint("Equal", 1, 3),
    Sketcher.Constraint("Equal", 9, 11),
    Sketcher.Constraint("Symmetric", 0, 2, 8, 2, -1, 1),
    Sketcher.Constraint("Symmetric", 3, 1, 11, 1, -1, 1),
    Sketcher.Constraint("Symmetric", 5, 2, 13, 2, -1, 1),
    Sketcher.Constraint("Symmetric", 7, 2, 12, 2, -2),
    Sketcher.Constraint("Horizontal", 5, 2, 14, 2),
    Sketcher.Constraint("Vertical", 2, 2, 9, 1),
    Sketcher.Constraint("Radius", 1, 0.5),
    Sketcher.Constraint("DistanceX", 2, 2, 2, 1, 5.0),
    Sketcher.Constraint("Radius", 9, 1.25),
    Sketcher.Constraint("DistanceX", 5, 2, 5, 1, 0.5),
    Sketcher.Constraint("DistanceY", 1, 1, -1, 1, 3.0),
    Sketcher.Constraint("DistanceY", 0, 2, 0, 1, 0.970554),
])
sketch6.setExpression("Constraints[36]", "Params.sketch6_radius")
sketch6.setExpression("Constraints[37]", "Params.sketch6_width")
sketch6.setExpression("Constraints[38]", "Params.sketch6_radius2")
sketch6.setExpression("Constraints[39]", "Params.sketch6_width2")
pocket3 = body.newObject("PartDesign::Pocket", "Pocket002")
pocket3.Profile = sketch6
pocket3.setExpression("Length", "Params.pocket3_length")
body2 = doc.addObject("PartDesign::Body", "Body001")

sketch7 = body2.newObject("Sketcher::SketchObject", "Sketch006")
sketch7.AttachmentSupport = (doc.getObject("XZ_Plane001"), [""])
sketch7.MapMode = "FlatFace"
sketch7.AttachmentOffset = App.Placement(Vector(0, 0, -3.75), App.Rotation())
sketch7.addGeometry(Part.Circle(Vector(0, 0, 0), Vector(0, 0, 1), 1.6), False)
sketch7.addConstraint([
    Sketcher.Constraint("Coincident", 0, 3, -1, 1),
    Sketcher.Constraint("Diameter", 0, 3.3),
])
sketch7.setExpression("Constraints[1]", "Params.sketch7_diameter")
pad4 = body2.newObject("PartDesign::Pad", "Pad003")
pad4.Profile = sketch7
pad4.setExpression("Length", "Params.pad4_length")
pad4.Reversed = True

sketch8 = body2.newObject("Sketcher::SketchObject", "Sketch007")
sketch8.AttachmentSupport = (doc.getObject("XZ_Plane001"), [""])
sketch8.MapMode = "FlatFace"
sketch8.AttachmentOffset = App.Placement(Vector(0, 0, -5.8), App.Rotation())
sketch8.addGeometry([
    Part.LineSegment(Vector(-0.3, -1.18, 0), Vector(-0.3, -0.3, 0)),
    Part.LineSegment(Vector(-0.3, -0.3, 0), Vector(-1.38, -0.3, 0)),
    Part.LineSegment(Vector(-1.38, -0.3, 0), Vector(-1.38, 0.3, 0)),
    Part.LineSegment(Vector(-1.38, 0.3, 0), Vector(-0.3, 0.3, 0)),
    Part.LineSegment(Vector(-0.3, 0.3, 0), Vector(-0.3, 1.38, 0)),
    Part.LineSegment(Vector(-0.3, 1.38, 0), Vector(0.3, 1.38, 0)),
    Part.LineSegment(Vector(0.3, 1.38, 0), Vector(0.3, 0.3, 0)),
    Part.LineSegment(Vector(0.3, 0.3, 0), Vector(1.38, 0.3, 0)),
    Part.LineSegment(Vector(1.38, 0.3, 0), Vector(1.38, -0.3, 0)),
    Part.LineSegment(Vector(1.38, -0.3, 0), Vector(0.3, -0.3, 0)),
    Part.LineSegment(Vector(0.3, -0.3, 0), Vector(0.3, -1.18, 0)),
    Part.LineSegment(Vector(0.3, -1.18, 0), Vector(0.47, -1.18, 0)),
    Part.LineSegment(Vector(0.47, -1.18, 0), Vector(0, -1.38, 0)),
    Part.LineSegment(Vector(0, -1.38, 0), Vector(-0.47, -1.18, 0)),
    Part.LineSegment(Vector(-0.47, -1.18, 0), Vector(-0.3, -1.18, 0)),
], False)
sketch8.addConstraint([
    Sketcher.Constraint("Coincident", 0, 2, 1, 1),
    Sketcher.Constraint("Coincident", 1, 2, 2, 1),
    Sketcher.Constraint("Coincident", 2, 2, 3, 1),
    Sketcher.Constraint("Coincident", 3, 2, 4, 1),
    Sketcher.Constraint("Coincident", 4, 2, 5, 1),
    Sketcher.Constraint("Coincident", 5, 2, 6, 1),
    Sketcher.Constraint("Coincident", 6, 2, 7, 1),
    Sketcher.Constraint("Coincident", 7, 2, 8, 1),
    Sketcher.Constraint("Coincident", 8, 2, 9, 1),
    Sketcher.Constraint("Coincident", 9, 2, 10, 1),
    Sketcher.Constraint("Coincident", 10, 2, 11, 1),
    Sketcher.Constraint("Coincident", 11, 2, 12, 1),
    Sketcher.Constraint("Coincident", 12, 2, 13, 1),
    Sketcher.Constraint("Coincident", 13, 2, 14, 1),
    Sketcher.Constraint("Coincident", 14, 2, 0, 1),
    Sketcher.Constraint("Vertical", 0),
    Sketcher.Constraint("Horizontal", 1),
    Sketcher.Constraint("Vertical", 2),
    Sketcher.Constraint("Horizontal", 3),
    Sketcher.Constraint("Vertical", 4),
    Sketcher.Constraint("Horizontal", 5),
    Sketcher.Constraint("Vertical", 6),
    Sketcher.Constraint("Horizontal", 7),
    Sketcher.Constraint("Vertical", 8),
    Sketcher.Constraint("Horizontal", 9),
    Sketcher.Constraint("Vertical", 10),
    Sketcher.Constraint("Horizontal", 11),
    Sketcher.Constraint("Horizontal", 14),
    Sketcher.Constraint("Symmetric", 0, 2, 6, 2, -1, 1),
    Sketcher.Constraint("Symmetric", 2, 2, 8, 2, -1, 1),
    Sketcher.Constraint("Symmetric", 3, 2, 6, 2, -2),
    Sketcher.Constraint("Symmetric", 11, 2, 13, 2, -2),
    Sketcher.Constraint("PointOnObject", 12, 2, -2),
    Sketcher.Constraint("Vertical", 6, 2, 9, 2),
    Sketcher.Constraint("Equal", 5, 2),
    Sketcher.Constraint("Equal", 9, 4),
    Sketcher.Constraint("DistanceX", 5, 1, 5, 2, 0.6),
    Sketcher.Constraint("DistanceX", 11, 2, 8, 2, 0.9),
    Sketcher.Constraint("DistanceY", 12, 2, 10, 2, 0.2),
    Sketcher.Constraint("DistanceX", 1, 2, 1, 1, 1.075),
    Sketcher.Constraint("DistanceY", 0, 1, 0, 2, 0.875),
])
sketch8.setExpression("Constraints[36]", "Params.sketch8_width")
pocket4 = body2.newObject("PartDesign::Pocket", "Pocket003")
pocket4.Profile = sketch8
pocket4.setExpression("Length", "Params.pocket4_length")
pocket4.Reversed = True
doc.recompute()

fillet2 = body2.newObject("PartDesign::Fillet", "Fillet001")
fillet2.Base = (pocket4, edges_at(pocket4, [
    (-0.3, 5, -0.3),
    (0.3, 5, -0.3),
    (0.3, 5, 0.3),
    (-0.3, 5, 0.3),
]))
fillet2.setExpression("Radius", "Params.fillet2_radius")
body3 = doc.addObject("PartDesign::Body", "Body002")

sketch9 = body3.newObject("Sketcher::SketchObject", "Sketch008")
sketch9.AttachmentSupport = (doc.getObject("XZ_Plane002"), [""])
sketch9.MapMode = "FlatFace"
sketch9.AttachmentOffset = App.Placement(Vector(0, 0, -0.2), App.Rotation())
sketch9.addGeometry(Part.Circle(Vector(2.5, 0, 0), Vector(0, 0, 1), 0.23), False)
sketch9.addConstraint([
    Sketcher.Constraint("PointOnObject", 0, 3, -1),
    Sketcher.Constraint("Diameter", 0, 0.45),
    Sketcher.Constraint("DistanceX", -1, 1, 0, 3, 2.5),
])
sketch9.setExpression("Constraints[1]", "Params.sketch9_diameter")
pad5 = body3.newObject("PartDesign::Pad", "Pad004")
pad5.Profile = sketch9
pad5.setExpression("Length", "Params.pad5_length")
body4 = doc.addObject("PartDesign::Body", "Body003")

sketch10 = body4.newObject("Sketcher::SketchObject", "Sketch009")
sketch10.AttachmentSupport = (doc.getObject("XZ_Plane003"), [""])
sketch10.MapMode = "FlatFace"
sketch10.AttachmentOffset = App.Placement(Vector(0, 0, -0.2), App.Rotation())
sketch10.addGeometry(Part.Circle(Vector(0, -2.5, 0), Vector(0, 0, 1), 0.23), False)
sketch10.addConstraint([
    Sketcher.Constraint("PointOnObject", 0, 3, -2),
    Sketcher.Constraint("Diameter", 0, 0.45),
    Sketcher.Constraint("DistanceY", 0, 3, -1, 1, 2.5),
])
sketch10.setExpression("Constraints[1]", "Params.sketch10_diameter")
pad6 = body4.newObject("PartDesign::Pad", "Pad005")
pad6.Profile = sketch10
pad6.setExpression("Length", "Params.pad6_length")
body5 = doc.addObject("PartDesign::Body", "Body004")

sketch11 = body5.newObject("Sketcher::SketchObject", "Sketch010")
sketch11.AttachmentSupport = (doc.getObject("XZ_Plane004"), [""])
sketch11.MapMode = "FlatFace"
sketch11.AttachmentOffset = App.Placement(Vector(0, 0, -0.2), App.Rotation())
sketch11.addGeometry(Part.Circle(Vector(-2.5, 0, 0), Vector(0, 0, 1), 0.23), False)
sketch11.addConstraint([
    Sketcher.Constraint("PointOnObject", 0, 3, -1),
    Sketcher.Constraint("Diameter", 0, 0.45),
    Sketcher.Constraint("DistanceX", 0, 3, -1, 1, 2.5),
])
sketch11.setExpression("Constraints[1]", "Params.sketch11_diameter")
pad7 = body5.newObject("PartDesign::Pad", "Pad006")
pad7.Profile = sketch11
pad7.setExpression("Length", "Params.pad7_length")

doc.recompute()
